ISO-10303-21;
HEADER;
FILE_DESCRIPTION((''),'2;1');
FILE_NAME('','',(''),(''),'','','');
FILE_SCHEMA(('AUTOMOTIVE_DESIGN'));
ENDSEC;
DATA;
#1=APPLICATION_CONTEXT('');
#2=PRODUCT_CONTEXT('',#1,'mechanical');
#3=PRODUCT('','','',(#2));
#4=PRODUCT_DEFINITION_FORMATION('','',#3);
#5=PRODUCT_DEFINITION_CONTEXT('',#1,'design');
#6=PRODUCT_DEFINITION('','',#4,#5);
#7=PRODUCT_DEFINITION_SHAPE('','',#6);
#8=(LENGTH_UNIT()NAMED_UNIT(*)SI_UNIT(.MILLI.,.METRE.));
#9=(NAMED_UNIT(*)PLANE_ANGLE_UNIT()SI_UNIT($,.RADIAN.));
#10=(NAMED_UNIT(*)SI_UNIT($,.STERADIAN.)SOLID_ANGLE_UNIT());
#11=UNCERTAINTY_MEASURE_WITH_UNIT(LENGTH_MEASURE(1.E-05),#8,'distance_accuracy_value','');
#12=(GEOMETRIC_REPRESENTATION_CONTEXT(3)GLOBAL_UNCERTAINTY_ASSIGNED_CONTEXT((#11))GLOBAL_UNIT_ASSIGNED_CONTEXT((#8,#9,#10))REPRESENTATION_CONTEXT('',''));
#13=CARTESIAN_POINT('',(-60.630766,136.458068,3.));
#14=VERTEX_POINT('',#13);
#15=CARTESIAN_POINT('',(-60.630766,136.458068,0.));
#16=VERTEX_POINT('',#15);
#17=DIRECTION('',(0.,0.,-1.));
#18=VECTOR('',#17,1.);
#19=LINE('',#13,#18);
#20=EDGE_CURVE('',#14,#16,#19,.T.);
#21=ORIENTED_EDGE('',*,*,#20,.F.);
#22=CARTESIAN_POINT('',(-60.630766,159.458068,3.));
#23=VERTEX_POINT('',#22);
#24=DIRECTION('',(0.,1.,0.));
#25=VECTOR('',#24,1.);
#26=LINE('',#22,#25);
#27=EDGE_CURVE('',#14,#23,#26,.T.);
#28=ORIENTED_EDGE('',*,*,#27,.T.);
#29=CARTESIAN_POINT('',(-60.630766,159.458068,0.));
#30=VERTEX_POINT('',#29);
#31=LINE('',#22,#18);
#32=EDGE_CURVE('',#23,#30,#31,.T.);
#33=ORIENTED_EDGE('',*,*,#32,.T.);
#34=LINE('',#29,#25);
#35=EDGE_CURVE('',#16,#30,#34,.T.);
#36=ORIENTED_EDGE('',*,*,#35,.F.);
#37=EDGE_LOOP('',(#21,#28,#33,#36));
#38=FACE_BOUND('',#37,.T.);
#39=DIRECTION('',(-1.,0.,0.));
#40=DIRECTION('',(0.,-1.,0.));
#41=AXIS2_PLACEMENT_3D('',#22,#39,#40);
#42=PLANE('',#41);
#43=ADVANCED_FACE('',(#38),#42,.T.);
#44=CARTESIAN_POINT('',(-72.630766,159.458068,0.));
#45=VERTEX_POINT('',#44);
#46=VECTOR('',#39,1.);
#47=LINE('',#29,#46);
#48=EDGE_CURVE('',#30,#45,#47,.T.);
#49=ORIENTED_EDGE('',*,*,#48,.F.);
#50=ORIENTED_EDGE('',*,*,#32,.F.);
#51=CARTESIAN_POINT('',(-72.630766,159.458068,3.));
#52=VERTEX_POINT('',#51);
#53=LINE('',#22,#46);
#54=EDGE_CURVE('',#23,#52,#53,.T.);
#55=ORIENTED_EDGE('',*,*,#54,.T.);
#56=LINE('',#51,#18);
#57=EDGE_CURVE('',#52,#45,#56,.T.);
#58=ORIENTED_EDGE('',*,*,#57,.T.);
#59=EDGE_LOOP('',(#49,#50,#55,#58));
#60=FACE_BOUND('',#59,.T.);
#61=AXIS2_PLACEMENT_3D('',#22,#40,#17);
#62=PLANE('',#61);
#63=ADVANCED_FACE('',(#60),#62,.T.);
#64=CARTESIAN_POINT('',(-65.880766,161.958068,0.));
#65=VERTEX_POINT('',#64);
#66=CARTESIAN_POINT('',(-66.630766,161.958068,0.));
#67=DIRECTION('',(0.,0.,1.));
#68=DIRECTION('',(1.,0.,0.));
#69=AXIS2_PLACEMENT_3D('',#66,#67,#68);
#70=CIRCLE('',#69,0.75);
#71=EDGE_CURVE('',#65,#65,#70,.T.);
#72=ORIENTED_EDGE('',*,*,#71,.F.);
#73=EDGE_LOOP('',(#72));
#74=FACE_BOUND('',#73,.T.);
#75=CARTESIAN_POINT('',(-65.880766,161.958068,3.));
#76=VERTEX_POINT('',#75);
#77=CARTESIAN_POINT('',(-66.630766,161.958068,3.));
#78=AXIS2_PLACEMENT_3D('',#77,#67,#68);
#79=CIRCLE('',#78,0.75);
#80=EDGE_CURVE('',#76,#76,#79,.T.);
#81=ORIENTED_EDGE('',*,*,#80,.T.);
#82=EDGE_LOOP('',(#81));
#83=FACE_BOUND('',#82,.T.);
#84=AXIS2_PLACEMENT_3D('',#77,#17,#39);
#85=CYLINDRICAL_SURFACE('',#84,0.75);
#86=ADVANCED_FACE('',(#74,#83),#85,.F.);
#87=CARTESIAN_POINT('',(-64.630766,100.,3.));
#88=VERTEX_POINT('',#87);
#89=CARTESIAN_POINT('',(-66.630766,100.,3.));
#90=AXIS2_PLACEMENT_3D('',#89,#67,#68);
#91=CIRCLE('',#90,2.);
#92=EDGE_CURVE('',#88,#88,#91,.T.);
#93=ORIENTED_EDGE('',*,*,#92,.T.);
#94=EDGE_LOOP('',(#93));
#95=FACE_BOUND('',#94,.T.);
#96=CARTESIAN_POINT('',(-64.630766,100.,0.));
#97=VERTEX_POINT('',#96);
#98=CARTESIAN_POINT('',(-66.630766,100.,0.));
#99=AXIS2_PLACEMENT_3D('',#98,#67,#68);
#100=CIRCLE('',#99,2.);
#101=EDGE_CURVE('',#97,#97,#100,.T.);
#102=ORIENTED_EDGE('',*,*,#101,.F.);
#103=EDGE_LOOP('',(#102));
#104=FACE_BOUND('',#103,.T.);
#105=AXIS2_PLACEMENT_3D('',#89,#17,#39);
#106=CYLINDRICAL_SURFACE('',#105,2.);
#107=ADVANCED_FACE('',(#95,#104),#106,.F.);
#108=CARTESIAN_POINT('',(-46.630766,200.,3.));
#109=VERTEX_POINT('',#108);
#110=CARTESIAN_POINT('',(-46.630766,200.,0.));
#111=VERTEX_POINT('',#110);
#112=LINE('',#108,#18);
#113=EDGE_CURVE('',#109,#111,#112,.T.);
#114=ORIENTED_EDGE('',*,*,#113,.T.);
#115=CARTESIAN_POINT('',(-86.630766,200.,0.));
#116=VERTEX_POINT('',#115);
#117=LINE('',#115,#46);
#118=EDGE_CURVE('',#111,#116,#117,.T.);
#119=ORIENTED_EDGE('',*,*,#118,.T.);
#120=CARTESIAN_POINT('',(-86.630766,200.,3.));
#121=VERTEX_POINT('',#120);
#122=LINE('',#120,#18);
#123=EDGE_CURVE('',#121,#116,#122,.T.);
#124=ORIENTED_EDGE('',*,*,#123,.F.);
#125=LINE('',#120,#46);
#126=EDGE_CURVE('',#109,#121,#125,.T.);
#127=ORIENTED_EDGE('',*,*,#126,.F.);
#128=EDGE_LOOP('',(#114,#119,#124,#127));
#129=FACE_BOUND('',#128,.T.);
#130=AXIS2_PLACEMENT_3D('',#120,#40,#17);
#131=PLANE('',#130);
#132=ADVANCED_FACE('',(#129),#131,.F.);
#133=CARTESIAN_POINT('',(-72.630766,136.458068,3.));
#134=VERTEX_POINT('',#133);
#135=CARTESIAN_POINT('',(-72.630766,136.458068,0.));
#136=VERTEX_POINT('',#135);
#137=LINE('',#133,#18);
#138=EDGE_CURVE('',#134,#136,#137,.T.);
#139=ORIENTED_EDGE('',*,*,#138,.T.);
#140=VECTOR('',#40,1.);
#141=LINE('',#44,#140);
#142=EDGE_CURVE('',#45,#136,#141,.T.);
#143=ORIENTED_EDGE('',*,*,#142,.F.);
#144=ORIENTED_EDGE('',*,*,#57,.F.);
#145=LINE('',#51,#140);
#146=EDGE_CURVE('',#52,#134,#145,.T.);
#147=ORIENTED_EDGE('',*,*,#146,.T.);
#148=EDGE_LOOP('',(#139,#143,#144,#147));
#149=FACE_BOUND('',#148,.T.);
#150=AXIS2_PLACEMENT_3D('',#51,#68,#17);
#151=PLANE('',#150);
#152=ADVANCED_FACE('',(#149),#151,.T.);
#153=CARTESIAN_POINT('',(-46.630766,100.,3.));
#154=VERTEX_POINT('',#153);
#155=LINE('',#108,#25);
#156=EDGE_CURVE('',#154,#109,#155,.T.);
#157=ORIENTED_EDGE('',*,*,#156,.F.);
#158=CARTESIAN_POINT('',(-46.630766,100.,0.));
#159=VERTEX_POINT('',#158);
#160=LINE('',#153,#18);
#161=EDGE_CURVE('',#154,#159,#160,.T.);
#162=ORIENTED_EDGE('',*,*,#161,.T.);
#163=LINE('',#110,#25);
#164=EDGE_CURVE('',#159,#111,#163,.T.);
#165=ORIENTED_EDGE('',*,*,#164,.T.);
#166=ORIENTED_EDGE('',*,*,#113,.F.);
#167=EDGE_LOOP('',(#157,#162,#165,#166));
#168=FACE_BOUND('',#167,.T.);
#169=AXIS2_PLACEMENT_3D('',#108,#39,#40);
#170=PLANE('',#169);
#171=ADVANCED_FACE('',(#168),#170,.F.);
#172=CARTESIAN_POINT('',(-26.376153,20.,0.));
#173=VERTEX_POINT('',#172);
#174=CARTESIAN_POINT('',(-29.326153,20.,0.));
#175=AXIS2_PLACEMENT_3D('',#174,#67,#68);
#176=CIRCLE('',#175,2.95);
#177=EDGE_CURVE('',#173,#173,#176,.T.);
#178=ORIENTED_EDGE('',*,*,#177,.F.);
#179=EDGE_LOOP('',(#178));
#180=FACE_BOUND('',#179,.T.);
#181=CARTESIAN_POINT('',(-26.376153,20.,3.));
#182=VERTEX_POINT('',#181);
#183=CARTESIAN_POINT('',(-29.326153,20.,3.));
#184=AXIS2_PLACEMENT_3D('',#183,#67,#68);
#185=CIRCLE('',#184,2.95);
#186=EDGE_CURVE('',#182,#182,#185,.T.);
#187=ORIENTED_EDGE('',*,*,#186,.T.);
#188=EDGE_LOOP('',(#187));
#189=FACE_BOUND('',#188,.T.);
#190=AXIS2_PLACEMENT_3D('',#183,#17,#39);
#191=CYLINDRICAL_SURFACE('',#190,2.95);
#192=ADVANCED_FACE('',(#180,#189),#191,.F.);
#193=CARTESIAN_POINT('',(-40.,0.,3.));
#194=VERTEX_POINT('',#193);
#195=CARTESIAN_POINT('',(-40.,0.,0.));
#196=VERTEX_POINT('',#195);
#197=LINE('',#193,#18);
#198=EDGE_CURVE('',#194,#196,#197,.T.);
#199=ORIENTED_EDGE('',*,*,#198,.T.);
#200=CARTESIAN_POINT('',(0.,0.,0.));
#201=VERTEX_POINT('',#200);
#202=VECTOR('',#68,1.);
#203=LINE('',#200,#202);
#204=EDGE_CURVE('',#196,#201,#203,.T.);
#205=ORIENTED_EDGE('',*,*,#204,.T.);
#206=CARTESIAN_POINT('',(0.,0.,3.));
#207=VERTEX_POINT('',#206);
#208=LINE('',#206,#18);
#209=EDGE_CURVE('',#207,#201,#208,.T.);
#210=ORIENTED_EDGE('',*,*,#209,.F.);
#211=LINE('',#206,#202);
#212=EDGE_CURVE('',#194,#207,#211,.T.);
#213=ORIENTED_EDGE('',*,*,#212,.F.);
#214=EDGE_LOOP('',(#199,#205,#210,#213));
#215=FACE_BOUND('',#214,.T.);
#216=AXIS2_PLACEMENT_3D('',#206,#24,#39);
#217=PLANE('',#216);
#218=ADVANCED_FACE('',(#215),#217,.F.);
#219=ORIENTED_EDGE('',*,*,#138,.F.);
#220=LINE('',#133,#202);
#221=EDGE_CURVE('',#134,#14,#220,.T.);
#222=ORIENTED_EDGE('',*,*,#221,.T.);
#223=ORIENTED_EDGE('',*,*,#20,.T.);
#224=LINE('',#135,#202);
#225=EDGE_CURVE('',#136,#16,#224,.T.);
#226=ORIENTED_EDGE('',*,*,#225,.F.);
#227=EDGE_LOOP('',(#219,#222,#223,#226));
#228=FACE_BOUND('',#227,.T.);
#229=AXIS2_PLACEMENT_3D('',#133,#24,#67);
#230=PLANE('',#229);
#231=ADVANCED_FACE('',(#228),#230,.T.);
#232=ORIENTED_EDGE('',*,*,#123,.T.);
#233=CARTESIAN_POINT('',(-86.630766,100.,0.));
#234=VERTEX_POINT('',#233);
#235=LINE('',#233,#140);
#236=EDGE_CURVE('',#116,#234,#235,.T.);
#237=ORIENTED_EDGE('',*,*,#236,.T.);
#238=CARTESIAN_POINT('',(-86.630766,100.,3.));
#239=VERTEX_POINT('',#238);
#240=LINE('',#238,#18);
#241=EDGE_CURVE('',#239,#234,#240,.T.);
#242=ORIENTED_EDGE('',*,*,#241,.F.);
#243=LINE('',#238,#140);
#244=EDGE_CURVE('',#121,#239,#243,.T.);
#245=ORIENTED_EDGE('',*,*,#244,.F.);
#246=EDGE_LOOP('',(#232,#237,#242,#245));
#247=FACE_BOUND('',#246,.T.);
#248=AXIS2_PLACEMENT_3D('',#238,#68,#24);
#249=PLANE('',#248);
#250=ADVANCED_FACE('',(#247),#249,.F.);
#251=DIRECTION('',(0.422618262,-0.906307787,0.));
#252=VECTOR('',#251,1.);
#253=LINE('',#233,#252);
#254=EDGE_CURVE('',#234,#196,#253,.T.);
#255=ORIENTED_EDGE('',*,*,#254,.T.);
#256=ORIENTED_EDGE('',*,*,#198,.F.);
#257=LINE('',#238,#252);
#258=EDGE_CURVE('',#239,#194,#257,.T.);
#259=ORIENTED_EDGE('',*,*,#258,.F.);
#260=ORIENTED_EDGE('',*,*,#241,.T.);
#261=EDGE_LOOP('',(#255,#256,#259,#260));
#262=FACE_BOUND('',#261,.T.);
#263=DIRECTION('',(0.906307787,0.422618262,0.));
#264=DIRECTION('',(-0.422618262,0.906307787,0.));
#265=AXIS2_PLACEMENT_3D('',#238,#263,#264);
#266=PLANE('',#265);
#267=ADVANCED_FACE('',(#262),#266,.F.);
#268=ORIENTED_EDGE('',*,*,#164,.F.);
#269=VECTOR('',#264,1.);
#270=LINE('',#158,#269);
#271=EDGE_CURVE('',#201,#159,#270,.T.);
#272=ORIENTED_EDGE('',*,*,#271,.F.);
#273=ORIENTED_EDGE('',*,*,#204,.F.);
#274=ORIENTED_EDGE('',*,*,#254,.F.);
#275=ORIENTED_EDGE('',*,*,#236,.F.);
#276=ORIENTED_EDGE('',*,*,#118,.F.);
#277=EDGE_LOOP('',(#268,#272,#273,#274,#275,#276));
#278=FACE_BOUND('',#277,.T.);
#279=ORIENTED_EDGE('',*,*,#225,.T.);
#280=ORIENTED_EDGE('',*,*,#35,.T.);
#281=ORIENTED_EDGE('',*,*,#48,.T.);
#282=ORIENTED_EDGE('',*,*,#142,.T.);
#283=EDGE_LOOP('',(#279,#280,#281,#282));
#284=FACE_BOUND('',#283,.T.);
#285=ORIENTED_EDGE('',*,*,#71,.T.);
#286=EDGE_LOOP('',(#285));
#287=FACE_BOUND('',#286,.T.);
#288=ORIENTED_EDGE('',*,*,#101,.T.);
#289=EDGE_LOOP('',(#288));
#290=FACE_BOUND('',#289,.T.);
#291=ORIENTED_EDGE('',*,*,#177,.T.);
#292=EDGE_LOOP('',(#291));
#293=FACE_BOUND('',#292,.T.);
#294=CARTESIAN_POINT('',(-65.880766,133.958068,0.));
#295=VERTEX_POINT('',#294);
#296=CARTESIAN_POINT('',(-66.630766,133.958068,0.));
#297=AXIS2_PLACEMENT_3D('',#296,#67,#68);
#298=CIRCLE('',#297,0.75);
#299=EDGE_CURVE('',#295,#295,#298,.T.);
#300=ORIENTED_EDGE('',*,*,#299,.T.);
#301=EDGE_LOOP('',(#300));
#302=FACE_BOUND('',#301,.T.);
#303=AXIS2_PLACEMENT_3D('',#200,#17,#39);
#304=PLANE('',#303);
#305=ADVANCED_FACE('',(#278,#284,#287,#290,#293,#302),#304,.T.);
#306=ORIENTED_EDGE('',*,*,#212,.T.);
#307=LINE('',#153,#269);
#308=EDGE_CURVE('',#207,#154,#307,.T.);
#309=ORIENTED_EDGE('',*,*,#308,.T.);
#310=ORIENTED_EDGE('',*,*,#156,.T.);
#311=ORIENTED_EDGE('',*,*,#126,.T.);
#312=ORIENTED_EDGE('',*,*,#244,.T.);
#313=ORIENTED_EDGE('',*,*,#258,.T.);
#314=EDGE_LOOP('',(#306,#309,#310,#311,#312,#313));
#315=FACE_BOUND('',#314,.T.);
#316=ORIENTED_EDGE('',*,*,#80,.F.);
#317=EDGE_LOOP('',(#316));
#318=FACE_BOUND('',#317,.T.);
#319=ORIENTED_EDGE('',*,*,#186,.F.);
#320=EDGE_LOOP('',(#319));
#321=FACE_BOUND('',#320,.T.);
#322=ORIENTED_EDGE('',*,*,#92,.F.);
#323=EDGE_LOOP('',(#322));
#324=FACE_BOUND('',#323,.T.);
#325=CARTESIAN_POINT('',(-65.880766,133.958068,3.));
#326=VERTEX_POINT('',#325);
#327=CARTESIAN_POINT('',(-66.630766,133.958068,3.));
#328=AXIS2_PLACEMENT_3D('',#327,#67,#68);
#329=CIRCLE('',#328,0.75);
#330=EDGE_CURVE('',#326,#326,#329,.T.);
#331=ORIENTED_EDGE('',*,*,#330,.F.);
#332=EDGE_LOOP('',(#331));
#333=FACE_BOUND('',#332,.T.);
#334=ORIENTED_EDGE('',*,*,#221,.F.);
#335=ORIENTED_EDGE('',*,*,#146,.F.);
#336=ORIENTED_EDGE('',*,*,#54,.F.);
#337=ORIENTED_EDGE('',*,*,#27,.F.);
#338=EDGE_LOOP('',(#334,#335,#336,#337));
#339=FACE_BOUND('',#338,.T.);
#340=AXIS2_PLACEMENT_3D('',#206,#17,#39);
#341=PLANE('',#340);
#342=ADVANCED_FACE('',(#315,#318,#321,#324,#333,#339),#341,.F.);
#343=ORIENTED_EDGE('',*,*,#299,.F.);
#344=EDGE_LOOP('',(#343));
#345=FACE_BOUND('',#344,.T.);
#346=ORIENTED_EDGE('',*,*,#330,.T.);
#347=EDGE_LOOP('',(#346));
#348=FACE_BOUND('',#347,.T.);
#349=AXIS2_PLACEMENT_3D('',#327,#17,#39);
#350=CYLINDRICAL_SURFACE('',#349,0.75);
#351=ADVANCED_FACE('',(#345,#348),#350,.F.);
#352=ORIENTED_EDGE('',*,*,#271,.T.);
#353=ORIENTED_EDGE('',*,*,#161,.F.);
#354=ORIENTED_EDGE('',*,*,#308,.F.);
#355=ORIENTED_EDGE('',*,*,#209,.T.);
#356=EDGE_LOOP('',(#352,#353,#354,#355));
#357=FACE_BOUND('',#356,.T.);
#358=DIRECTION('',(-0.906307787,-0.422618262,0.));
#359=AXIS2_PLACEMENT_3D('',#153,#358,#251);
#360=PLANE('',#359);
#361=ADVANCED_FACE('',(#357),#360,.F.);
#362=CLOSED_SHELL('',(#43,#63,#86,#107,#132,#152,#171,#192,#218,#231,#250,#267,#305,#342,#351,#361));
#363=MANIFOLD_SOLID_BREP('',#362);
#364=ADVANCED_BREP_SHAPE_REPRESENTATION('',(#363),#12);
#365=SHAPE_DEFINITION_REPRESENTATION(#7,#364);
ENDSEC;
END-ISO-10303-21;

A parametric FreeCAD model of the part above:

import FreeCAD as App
import Part
import Sketcher

V = App.Vector
Q = App.Units.Quantity

doc = App.newDocument("Part")
params = doc.addObject("Spreadsheet::Sheet", "Params")
for row, (alias, value) in enumerate([
    ("sketch1_diameter", "4 mm"),
    ("sketch1_diameter2", "5.9 mm"),
    ("sketch1_diameter3", "1.5 mm"),
    ("sketch1_width", "40 mm"),
    ("sketch1_width2", "12 mm"),
    ("pad1_length", "3 mm"),
], start=1):
    params.set(f"A{row}", alias)
    params.set(f"B{row}", "=" + value)
    params.setAlias(f"B{row}", alias)

body = doc.addObject("PartDesign::Body", "Body")

sketch1 = doc.addObject("Sketcher::SketchObject", "Sketch")
body.addObject(sketch1)
sketch1.AttachmentSupport = (doc.XY_Plane, [""])
sketch1.MapMode = "FlatFace"
sketch1.addGeometry(Part.LineSegment(V(-40, 0, 0), V(0, 0, 0)), False)
sketch1.addGeometry(Part.LineSegment(V(0, 0, 0), V(-46.630766, 100, 0)), False)
sketch1.addGeometry(Part.LineSegment(V(-46.630766, 100, 0), V(-46.630766, 200, 0)), False)
sketch1.addGeometry(Part.LineSegment(V(-46.630766, 200, 0), V(-86.630766, 200, 0)), False)
sketch1.addGeometry(Part.LineSegment(V(-86.630766, 200, 0), V(-86.630766, 100, 0)), False)
sketch1.addGeometry(Part.LineSegment(V(-86.630766, 100, 0), V(-40, 0, 0)), False)
sketch1.addGeometry(Part.Circle(V(-29.326153, 20, 0), V(0, 0, 1), 2.95), False)
sketch1.addGeometry(Part.Circle(V(-66.630766, 100, 0), V(0, 0, 1), 2), False)
sketch1.addGeometry(Part.Circle(V(-66.630766, 133.958068, 0), V(0, 0, 1), 0.75), False)
sketch1.addGeometry(Part.LineSegment(V(-72.630766, 136.458068, 0), V(-72.630766, 159.458068, 0)), False)
sketch1.addGeometry(Part.LineSegment(V(-72.630766, 159.458068, 0), V(-60.630766, 159.458068, 0)), False)
sketch1.addGeometry(Part.LineSegment(V(-60.630766, 159.458068, 0), V(-60.630766, 136.458068, 0)), False)
sketch1.addGeometry(Part.LineSegment(V(-60.630766, 136.458068, 0), V(-72.630766, 136.458068, 0)), False)
sketch1.addGeometry(Part.Circle(V(-66.630766, 161.958068, 0), V(0, 0, 1), 0.75), False)
sketch1.addConstraint(Sketcher.Constraint("Coincident", 0, 2, 1, 1))
sketch1.addConstraint(Sketcher.Constraint("Coincident", 1, 2, 2, 1))
sketch1.addConstraint(Sketcher.Constraint("Coincident", 2, 2, 3, 1))
sketch1.addConstraint(Sketcher.Constraint("Coincident", 3, 2, 4, 1))
sketch1.addConstraint(Sketcher.Constraint("Coincident", 4, 2, 5, 1))
sketch1.addConstraint(Sketcher.Constraint("Coincident", 5, 2, 0, 1))
sketch1.addConstraint(Sketcher.Constraint("Coincident", 9, 2, 10, 1))
sketch1.addConstraint(Sketcher.Constraint("Coincident", 10, 2, 11, 1))
sketch1.addConstraint(Sketcher.Constraint("Coincident", 11, 2, 12, 1))
sketch1.addConstraint(Sketcher.Constraint("Coincident", 12, 2, 9, 1))
sketch1.addConstraint(Sketcher.Constraint("Horizontal", 0))
sketch1.addConstraint(Sketcher.Constraint("Vertical", 2))
sketch1.addConstraint(Sketcher.Constraint("Horizontal", 3))
sketch1.addConstraint(Sketcher.Constraint("Vertical", 4))
sketch1.addConstraint(Sketcher.Constraint("Vertical", 9))
sketch1.addConstraint(Sketcher.Constraint("Horizontal", 10))
sketch1.addConstraint(Sketcher.Constraint("Vertical", 11))
sketch1.addConstraint(Sketcher.Constraint("Horizontal", 12))
sketch1.addConstraint(Sketcher.Constraint("Coincident", 0, 2, -1, 1))
sketch1.addConstraint(Sketcher.Constraint("Equal", 8, 13))
sketch1.addConstraint(Sketcher.Constraint("Parallel", 1, 5))
sketch1.addConstraint(Sketcher.Constraint("Horizontal", 7, 3, 1, 2))
sketch1.addConstraint(Sketcher.Constraint("Horizontal", 1, 2, 4, 2))
sketch1.addConstraint(Sketcher.Constraint("Vertical", 7, 3, 8, 3))
sketch1.addConstraint(Sketcher.Constraint("Vertical", 8, 3, 13, 3))
sketch1.addConstraint(Sketcher.Constraint("Diameter", 7, Q("4 mm")))
sketch1.addConstraint(Sketcher.Constraint("Diameter", 6, Q("5.9 mm")))
sketch1.addConstraint(Sketcher.Constraint("Diameter", 8, Q("1.5 mm")))
sketch1.addConstraint(Sketcher.Constraint("DistanceX", 0, 1, 0, 2, Q("40 mm")))
sketch1.addConstraint(Sketcher.Constraint("DistanceX", 10, 1, 10, 2, Q("12 mm")))
sketch1.addConstraint(Sketcher.Constraint("DistanceY", 2, 1, 2, 2, Q("100 mm")))
sketch1.addConstraint(Sketcher.Constraint("DistanceY", 9, 1, 9, 2, Q("23 mm")))
sketch1.addConstraint(Sketcher.Constraint("Angle", 1, Q("115 deg")))
sketch1.addConstraint(Sketcher.Constraint("DistanceY", -1, 1, 6, 3, Q("20 mm")))
sketch1.addConstraint(Sketcher.Constraint("DistanceY", -1, 1, 7, 3, Q("100 mm")))
sketch1.addConstraint(Sketcher.Constraint("DistanceY", 8, 3, 13, 3, Q("28 mm")))
sketch1.addConstraint(Sketcher.Constraint("DistanceX", 7, 3, 1, 2, Q("20 mm")))
sketch1.addConstraint(Sketcher.Constraint("DistanceX", 9, 2, 13, 3, Q("6 mm")))
sketch1.addConstraint(Sketcher.Constraint("DistanceY", 9, 2, 13, 3, Q("2.5 mm")))
sketch1.addConstraint(Sketcher.Constraint("DistanceX", 6, 3, -1, 1, Q("29.326153 mm")))
sketch1.addConstraint(Sketcher.Constraint("DistanceY", -1, 1, 8, 3, Q("133.958068 mm")))
sketch1.setExpression("Constraints[25]", "Params.sketch1_diameter")
sketch1.setExpression("Constraints[26]", "Params.sketch1_diameter2")
sketch1.setExpression("Constraints[27]", "Params.sketch1_diameter3")
sketch1.setExpression("Constraints[28]", "Params.sketch1_width")
sketch1.setExpression("Constraints[29]", "Params.sketch1_width2")
pad1 = doc.addObject("PartDesign::Pad", "Pad")
body.addObject(pad1)
pad1.Profile = sketch1
pad1.setExpression("Length", "Params.pad1_length")

doc.recompute()
